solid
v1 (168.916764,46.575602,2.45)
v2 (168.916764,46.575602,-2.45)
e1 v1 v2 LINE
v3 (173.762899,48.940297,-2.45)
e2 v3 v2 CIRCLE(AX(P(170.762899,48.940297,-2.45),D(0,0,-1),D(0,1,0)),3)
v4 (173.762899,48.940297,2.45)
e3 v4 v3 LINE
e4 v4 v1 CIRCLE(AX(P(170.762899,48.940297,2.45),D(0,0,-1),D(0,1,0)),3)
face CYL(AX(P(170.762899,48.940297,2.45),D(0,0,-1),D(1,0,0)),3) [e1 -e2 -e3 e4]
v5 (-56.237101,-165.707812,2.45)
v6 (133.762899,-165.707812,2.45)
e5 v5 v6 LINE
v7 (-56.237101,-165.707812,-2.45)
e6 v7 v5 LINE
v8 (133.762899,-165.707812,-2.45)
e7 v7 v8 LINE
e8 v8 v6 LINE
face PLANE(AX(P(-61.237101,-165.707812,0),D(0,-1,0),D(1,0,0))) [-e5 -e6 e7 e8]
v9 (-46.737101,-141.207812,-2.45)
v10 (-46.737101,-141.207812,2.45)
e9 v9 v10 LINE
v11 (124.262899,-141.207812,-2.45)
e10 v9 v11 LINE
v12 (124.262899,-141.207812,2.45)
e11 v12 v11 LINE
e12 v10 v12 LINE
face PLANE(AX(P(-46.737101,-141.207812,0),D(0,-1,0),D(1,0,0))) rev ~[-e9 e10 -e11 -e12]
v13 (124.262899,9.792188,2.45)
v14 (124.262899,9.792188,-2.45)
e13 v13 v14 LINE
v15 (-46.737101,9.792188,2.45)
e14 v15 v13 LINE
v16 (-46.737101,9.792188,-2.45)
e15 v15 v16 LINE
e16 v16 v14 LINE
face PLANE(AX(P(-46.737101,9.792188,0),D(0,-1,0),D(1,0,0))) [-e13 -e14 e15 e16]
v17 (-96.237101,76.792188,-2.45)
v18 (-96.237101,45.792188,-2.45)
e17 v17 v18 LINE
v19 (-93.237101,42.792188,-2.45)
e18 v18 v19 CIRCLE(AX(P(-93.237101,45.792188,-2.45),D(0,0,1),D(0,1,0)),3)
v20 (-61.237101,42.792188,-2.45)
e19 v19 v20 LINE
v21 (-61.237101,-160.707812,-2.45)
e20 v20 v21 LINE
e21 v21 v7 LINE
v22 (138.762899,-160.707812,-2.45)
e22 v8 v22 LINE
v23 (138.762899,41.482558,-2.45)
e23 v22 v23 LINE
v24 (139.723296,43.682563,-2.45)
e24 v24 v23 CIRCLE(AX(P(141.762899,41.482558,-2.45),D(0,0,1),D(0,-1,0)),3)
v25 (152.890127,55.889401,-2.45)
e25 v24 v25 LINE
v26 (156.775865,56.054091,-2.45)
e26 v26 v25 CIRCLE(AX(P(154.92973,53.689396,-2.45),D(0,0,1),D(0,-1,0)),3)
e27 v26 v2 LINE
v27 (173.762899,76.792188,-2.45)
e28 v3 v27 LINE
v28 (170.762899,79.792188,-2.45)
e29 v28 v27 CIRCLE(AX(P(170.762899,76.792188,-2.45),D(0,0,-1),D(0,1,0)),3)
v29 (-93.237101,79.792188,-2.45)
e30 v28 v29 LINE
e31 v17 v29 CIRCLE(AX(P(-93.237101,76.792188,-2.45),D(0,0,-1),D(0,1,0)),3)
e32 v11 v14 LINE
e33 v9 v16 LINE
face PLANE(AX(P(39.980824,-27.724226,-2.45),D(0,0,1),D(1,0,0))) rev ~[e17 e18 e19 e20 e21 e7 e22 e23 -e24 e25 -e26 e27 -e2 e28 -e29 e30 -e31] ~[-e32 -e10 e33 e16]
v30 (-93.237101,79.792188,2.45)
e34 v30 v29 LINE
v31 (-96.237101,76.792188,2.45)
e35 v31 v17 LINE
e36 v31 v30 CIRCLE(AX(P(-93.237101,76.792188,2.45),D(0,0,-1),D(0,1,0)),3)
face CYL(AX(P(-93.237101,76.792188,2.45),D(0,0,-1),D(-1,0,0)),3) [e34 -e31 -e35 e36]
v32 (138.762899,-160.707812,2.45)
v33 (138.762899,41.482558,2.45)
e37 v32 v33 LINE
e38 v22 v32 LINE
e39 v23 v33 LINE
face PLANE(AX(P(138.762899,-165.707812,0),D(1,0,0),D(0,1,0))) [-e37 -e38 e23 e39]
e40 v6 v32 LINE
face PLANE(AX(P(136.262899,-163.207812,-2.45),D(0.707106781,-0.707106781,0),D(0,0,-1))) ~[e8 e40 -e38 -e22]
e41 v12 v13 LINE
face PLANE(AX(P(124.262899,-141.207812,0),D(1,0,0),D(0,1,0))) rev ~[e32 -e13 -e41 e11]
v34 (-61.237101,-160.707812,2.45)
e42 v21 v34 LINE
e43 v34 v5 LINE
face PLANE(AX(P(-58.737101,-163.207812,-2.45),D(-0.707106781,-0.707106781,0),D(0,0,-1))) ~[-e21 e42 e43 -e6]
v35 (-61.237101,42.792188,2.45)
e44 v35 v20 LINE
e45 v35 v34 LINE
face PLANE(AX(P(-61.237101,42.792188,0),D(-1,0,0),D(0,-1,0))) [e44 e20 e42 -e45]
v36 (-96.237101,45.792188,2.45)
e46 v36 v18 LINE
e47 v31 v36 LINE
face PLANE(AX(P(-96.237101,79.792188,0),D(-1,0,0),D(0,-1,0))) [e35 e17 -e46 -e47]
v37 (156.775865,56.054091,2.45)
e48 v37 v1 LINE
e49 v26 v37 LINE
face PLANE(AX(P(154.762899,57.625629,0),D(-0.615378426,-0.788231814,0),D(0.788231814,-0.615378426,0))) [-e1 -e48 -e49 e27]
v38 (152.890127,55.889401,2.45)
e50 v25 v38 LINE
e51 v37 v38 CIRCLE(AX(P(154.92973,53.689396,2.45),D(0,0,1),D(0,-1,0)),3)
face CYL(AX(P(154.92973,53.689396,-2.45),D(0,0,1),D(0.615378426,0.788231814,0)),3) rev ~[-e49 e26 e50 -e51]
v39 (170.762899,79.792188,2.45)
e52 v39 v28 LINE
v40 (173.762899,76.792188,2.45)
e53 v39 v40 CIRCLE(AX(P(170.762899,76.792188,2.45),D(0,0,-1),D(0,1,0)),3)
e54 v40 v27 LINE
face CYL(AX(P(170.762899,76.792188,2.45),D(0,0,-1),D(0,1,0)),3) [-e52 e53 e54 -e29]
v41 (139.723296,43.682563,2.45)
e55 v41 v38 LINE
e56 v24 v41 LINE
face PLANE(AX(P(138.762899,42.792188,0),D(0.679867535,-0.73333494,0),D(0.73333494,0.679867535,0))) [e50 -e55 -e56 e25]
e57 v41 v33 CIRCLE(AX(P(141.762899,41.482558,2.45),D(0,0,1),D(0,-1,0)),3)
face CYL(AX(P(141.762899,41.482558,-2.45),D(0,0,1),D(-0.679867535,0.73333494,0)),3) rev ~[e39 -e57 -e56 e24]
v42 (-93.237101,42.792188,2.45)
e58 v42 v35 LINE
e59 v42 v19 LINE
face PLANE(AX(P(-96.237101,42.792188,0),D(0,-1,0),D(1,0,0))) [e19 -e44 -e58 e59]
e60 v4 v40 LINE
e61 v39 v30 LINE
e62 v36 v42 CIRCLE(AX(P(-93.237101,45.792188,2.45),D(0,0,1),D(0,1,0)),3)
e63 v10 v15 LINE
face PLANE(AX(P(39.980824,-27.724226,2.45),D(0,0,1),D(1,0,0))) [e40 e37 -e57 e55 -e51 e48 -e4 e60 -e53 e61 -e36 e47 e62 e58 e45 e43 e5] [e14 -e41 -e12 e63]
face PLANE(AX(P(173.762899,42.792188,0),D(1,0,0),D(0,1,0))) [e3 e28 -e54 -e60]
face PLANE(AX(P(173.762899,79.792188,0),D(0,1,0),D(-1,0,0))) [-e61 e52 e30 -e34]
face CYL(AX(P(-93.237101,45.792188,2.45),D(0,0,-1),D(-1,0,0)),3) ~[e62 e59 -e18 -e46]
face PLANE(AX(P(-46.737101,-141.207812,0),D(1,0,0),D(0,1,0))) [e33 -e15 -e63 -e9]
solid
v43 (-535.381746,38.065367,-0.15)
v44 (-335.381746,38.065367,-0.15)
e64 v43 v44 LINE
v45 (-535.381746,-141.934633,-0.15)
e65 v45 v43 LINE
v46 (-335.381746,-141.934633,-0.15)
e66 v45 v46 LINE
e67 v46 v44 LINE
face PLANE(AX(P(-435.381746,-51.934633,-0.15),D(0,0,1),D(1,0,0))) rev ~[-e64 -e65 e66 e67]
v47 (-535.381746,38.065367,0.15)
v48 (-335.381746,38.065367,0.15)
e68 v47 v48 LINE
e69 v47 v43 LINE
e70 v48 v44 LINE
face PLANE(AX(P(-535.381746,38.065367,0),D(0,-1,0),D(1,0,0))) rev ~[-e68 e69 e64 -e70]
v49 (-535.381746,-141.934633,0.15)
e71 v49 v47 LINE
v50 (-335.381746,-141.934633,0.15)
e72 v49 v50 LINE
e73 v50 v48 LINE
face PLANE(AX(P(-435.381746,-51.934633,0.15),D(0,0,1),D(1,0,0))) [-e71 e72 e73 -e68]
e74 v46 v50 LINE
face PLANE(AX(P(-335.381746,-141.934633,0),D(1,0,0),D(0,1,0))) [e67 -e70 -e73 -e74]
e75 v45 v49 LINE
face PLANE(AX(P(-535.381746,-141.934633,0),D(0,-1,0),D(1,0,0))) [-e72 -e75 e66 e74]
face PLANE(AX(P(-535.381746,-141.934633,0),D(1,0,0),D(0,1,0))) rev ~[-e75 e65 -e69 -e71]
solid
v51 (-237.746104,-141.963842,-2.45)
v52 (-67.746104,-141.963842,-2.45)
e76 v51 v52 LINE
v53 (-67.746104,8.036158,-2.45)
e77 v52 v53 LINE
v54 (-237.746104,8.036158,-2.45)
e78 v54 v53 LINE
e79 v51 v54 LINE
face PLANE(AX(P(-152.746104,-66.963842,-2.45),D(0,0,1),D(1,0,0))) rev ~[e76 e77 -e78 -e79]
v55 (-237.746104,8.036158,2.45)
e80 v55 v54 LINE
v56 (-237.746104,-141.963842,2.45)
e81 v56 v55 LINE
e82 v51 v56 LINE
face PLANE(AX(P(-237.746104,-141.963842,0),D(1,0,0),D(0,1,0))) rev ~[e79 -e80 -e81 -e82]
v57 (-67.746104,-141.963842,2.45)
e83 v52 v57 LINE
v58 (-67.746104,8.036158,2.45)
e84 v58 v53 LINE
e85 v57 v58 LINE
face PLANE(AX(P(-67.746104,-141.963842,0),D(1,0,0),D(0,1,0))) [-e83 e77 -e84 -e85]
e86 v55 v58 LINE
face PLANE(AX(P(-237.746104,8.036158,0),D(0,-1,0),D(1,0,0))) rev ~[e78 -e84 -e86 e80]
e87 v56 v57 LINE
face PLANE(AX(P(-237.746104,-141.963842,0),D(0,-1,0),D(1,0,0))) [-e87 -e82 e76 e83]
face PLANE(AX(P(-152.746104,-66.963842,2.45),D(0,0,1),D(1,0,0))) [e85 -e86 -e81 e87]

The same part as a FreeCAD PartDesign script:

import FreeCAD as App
import Part
import Sketcher


def edges_at(feature, points):
    """Names of the edges that pass closest to the given points."""
    edges = feature.Shape.Edges
    near = lambda p: min(range(len(edges)), key=lambda i: edges[i].distToShape(Part.Vertex(*p))[0])
    return sorted({f"Edge{near(p) + 1}" for p in points})

doc = App.newDocument("Part")
body = doc.addObject("PartDesign::Body", "Body")

# Sketch on XY plane
sketch1 = doc.addObject("Sketcher::SketchObject", "Sketch")
body.addObject(sketch1)
sketch1.AttachmentSupport = (doc.XY_Plane, [""])
sketch1.MapMode = "FlatFace"
sketch1.addGeometry([
    Part.LineSegment(App.Vector(-61.237101, 42.792188, 0), App.Vector(-61.237101, -165.707812, 0)),  # 0
    Part.LineSegment(App.Vector(-61.237101, -165.707812, 0), App.Vector(138.762899, -165.707812, 0)),  # 1
    Part.LineSegment(App.Vector(138.762899, -165.707812, 0), App.Vector(138.762899, 42.792188, 0)),  # 2
    Part.LineSegment(App.Vector(138.762899, 42.792188, 0), App.Vector(154.762899, 57.625629, 0)),  # 3
    Part.LineSegment(App.Vector(154.762899, 57.625629, 0), App.Vector(173.762899, 42.792188, 0)),  # 4
    Part.LineSegment(App.Vector(173.762899, 42.792188, 0), App.Vector(173.762899, 79.792188, 0)),  # 5
    Part.LineSegment(App.Vector(173.762899, 79.792188, 0), App.Vector(-96.237101, 79.792188, 0)),  # 6
    Part.LineSegment(App.Vector(-96.237101, 79.792188, 0), App.Vector(-96.237101, 42.792188, 0)),  # 7
    Part.LineSegment(App.Vector(-96.237101, 42.792188, 0), App.Vector(-61.237101, 42.792188, 0)),  # 8
    Part.LineSegment(App.Vector(124.262899, -141.207812, 0), App.Vector(-46.737101, -141.207812, 0)),  # 9
    Part.LineSegment(App.Vector(-46.737101, -141.207812, 0), App.Vector(-46.737101, 9.792188, 0)),  # 10
    Part.LineSegment(App.Vector(-46.737101, 9.792188, 0), App.Vector(124.262899, 9.792188, 0)),  # 11
    Part.LineSegment(App.Vector(124.262899, 9.792188, 0), App.Vector(124.262899, -141.207812, 0)),  # 12
], False)
sketch1.addConstraint([
    Sketcher.Constraint("Coincident", 0, 2, 1, 1),
    Sketcher.Constraint("Coincident", 1, 2, 2, 1),
    Sketcher.Constraint("Coincident", 2, 2, 3, 1),
    Sketcher.Constraint("Coincident", 3, 2, 4, 1),
    Sketcher.Constraint("Coincident", 4, 2, 5, 1),
    Sketcher.Constraint("Coincident", 5, 2, 6, 1),
    Sketcher.Constraint("Coincident", 6, 2, 7, 1),
    Sketcher.Constraint("Coincident", 7, 2, 8, 1),
    Sketcher.Constraint("Coincident", 8, 2, 0, 1),
    Sketcher.Constraint("Coincident", 9, 2, 10, 1),
    Sketcher.Constraint("Coincident", 10, 2, 11, 1),
    Sketcher.Constraint("Coincident", 11, 2, 12, 1),
    Sketcher.Constraint("Coincident", 12, 2, 9, 1),
    Sketcher.Constraint("Vertical", 0),
    Sketcher.Constraint("Horizontal", 1),
    Sketcher.Constraint("Vertical", 2),
    Sketcher.Constraint("Vertical", 5),
    Sketcher.Constraint("Horizontal", 6),
    Sketcher.Constraint("Vertical", 7),
    Sketcher.Constraint("Horizontal", 8),
    Sketcher.Constraint("Horizontal", 9),
    Sketcher.Constraint("Vertical", 10),
    Sketcher.Constraint("Horizontal", 11),
    Sketcher.Constraint("Vertical", 12),
    Sketcher.Constraint("Horizontal", 2, 2, 4, 2),
    Sketcher.Constraint("Horizontal", 4, 2, 7, 2),
    Sketcher.Constraint("DistanceX", 1, 1, 1, 2, 200.0),
    Sketcher.Constraint("DistanceX", 6, 2, 6, 1, 270.0),
    Sketcher.Constraint("DistanceX", 8, 1, 8, 2, 35.0),
    Sketcher.Constraint("DistanceX", 9, 2, 9, 1, 171.0),
    Sketcher.Constraint("DistanceY", 5, 1, 5, 2, 37.0),
    Sketcher.Constraint("DistanceY", 10, 1, 10, 2, 151.0),
    Sketcher.Constraint("DistanceY", 0, 2, 0, 1, 208.5),
    Sketcher.Constraint("DistanceX", 2, 2, 3, 2, 16.0),
    Sketcher.Constraint("DistanceY", 9, 2, 8, 2, 184.0),
    Sketcher.Constraint("DistanceX", 0, 2, 9, 2, 14.5),
    Sketcher.Constraint("DistanceX", 0, 2, -1, 1, 61.237101),
    Sketcher.Constraint("DistanceY", 0, 2, -1, 1, 165.707812),
    Sketcher.Constraint("DistanceY", -1, 1, 3, 2, 57.625629),
])
pad1 = doc.addObject("PartDesign::Pad", "Pad")
body.addObject(pad1)
pad1.Profile = sketch1
pad1.Length = 4.9
pad1.Midplane = True
doc.recompute()

fillet = doc.addObject("PartDesign::Fillet", "Fillet")
body.addObject(fillet)
fillet.Base = (pad1, edges_at(pad1, [
    (-96.237, 79.792, 0),
    (173.763, 79.792, 0),
    (173.763, 42.792, 0),
    (138.763, 42.792, 0),
    (154.763, 57.626, 0),
]))
fillet.Radius = 3
doc.recompute()

fillet2 = doc.addObject("PartDesign::Fillet", "Fillet001")
body.addObject(fillet2)
fillet2.Base = (fillet, edges_at(fillet, [(-96.237, 42.792, 0)]))
fillet2.Radius = 3
doc.recompute()

chamfer = doc.addObject("PartDesign::Chamfer", "Chamfer")
body.addObject(chamfer)
chamfer.Base = (fillet2, edges_at(fillet2, [(-61.237, -165.708, 0), (138.763, -165.708, 0)]))
chamfer.Size = 5
body2 = doc.addObject("PartDesign::Body", "Body001")

# Sketch on XY plane
sketch2 = doc.addObject("Sketcher::SketchObject", "Sketch001")
body2.addObject(sketch2)
sketch2.AttachmentSupport = (doc.getObject("XY_Plane001"), [""])
sketch2.MapMode = "FlatFace"
sketch2.addGeometry([
    Part.LineSegment(App.Vector(-237.746104, 8.036158, 0), App.Vector(-237.746104, -141.963842, 0)),
    Part.LineSegment(App.Vector(-237.746104, -141.963842, 0), App.Vector(-67.746104, -141.963842, 0)),
    Part.LineSegment(App.Vector(-67.746104, -141.963842, 0), App.Vector(-67.746104, 8.036158, 0)),
    Part.LineSegment(App.Vector(-67.746104, 8.036158, 0), App.Vector(-237.746104, 8.036158, 0)),
], False)
sketch2.addConstraint([
    Sketcher.Constraint("Coincident", 0, 2, 1, 1),
    Sketcher.Constraint("Coincident", 1, 2, 2, 1),
    Sketcher.Constraint("Coincident", 2, 2, 3, 1),
    Sketcher.Constraint("Coincident", 3, 2, 0, 1),
    Sketcher.Constraint("Vertical", 0),
    Sketcher.Constraint("Horizontal", 1),
    Sketcher.Constraint("Vertical", 2),
    Sketcher.Constraint("Horizontal", 3),
    Sketcher.Constraint("DistanceX", 1, 1, 1, 2, 170.0),
    Sketcher.Constraint("DistanceY", 0, 2, 0, 1, 150.0),
    Sketcher.Constraint("DistanceY", 0, 2, -1, 1, 141.963842),
    Sketcher.Constraint("DistanceX", 0, 2, -1, 1, 237.746104),
])
pad2 = doc.addObject("PartDesign::Pad", "Pad001")
body2.addObject(pad2)
pad2.Profile = sketch2
pad2.Length = 4.9
pad2.Midplane = True
body3 = doc.addObject("PartDesign::Body", "Body002")

# Sketch on XY plane
sketch3 = doc.addObject("Sketcher::SketchObject", "Sketch002")
body3.addObject(sketch3)
sketch3.AttachmentSupport = (doc.getObject("XY_Plane002"), [""])
sketch3.MapMode = "FlatFace"
sketch3.addGeometry([
    Part.LineSegment(App.Vector(-535.381746, 38.065367, 0), App.Vector(-535.381746, -141.934633, 0)),
    Part.LineSegment(App.Vector(-535.381746, -141.934633, 0), App.Vector(-335.381746, -141.934633, 0)),
    Part.LineSegment(App.Vector(-335.381746, -141.934633, 0), App.Vector(-335.381746, 38.065367, 0)),
    Part.LineSegment(App.Vector(-335.381746, 38.065367, 0), App.Vector(-535.381746, 38.065367, 0)),
], False)
sketch3.addConstraint([
    Sketcher.Constraint("Coincident", 0, 2, 1, 1),
    Sketcher.Constraint("Coincident", 1, 2, 2, 1),
    Sketcher.Constraint("Coincident", 2, 2, 3, 1),
    Sketcher.Constraint("Coincident", 3, 2, 0, 1),
    Sketcher.Constraint("Vertical", 0),
    Sketcher.Constraint("Horizontal", 1),
    Sketcher.Constraint("Vertical", 2),
    Sketcher.Constraint("Horizontal", 3),
    Sketcher.Constraint("DistanceX", 1, 1, 1, 2, 200.0),
    Sketcher.Constraint("DistanceY", 0, 2, 0, 1, 180.0),
    Sketcher.Constraint("DistanceX", 0, 2, -1, 1, 535.381746),
    Sketcher.Constraint("DistanceY", 0, 2, -1, 1, 141.934633),
])
pad3 = doc.addObject("PartDesign::Pad", "Pad002")
body3.addObject(pad3)
pad3.Profile = sketch3
pad3.Length = 0.3
pad3.Midplane = True

doc.recompute()
